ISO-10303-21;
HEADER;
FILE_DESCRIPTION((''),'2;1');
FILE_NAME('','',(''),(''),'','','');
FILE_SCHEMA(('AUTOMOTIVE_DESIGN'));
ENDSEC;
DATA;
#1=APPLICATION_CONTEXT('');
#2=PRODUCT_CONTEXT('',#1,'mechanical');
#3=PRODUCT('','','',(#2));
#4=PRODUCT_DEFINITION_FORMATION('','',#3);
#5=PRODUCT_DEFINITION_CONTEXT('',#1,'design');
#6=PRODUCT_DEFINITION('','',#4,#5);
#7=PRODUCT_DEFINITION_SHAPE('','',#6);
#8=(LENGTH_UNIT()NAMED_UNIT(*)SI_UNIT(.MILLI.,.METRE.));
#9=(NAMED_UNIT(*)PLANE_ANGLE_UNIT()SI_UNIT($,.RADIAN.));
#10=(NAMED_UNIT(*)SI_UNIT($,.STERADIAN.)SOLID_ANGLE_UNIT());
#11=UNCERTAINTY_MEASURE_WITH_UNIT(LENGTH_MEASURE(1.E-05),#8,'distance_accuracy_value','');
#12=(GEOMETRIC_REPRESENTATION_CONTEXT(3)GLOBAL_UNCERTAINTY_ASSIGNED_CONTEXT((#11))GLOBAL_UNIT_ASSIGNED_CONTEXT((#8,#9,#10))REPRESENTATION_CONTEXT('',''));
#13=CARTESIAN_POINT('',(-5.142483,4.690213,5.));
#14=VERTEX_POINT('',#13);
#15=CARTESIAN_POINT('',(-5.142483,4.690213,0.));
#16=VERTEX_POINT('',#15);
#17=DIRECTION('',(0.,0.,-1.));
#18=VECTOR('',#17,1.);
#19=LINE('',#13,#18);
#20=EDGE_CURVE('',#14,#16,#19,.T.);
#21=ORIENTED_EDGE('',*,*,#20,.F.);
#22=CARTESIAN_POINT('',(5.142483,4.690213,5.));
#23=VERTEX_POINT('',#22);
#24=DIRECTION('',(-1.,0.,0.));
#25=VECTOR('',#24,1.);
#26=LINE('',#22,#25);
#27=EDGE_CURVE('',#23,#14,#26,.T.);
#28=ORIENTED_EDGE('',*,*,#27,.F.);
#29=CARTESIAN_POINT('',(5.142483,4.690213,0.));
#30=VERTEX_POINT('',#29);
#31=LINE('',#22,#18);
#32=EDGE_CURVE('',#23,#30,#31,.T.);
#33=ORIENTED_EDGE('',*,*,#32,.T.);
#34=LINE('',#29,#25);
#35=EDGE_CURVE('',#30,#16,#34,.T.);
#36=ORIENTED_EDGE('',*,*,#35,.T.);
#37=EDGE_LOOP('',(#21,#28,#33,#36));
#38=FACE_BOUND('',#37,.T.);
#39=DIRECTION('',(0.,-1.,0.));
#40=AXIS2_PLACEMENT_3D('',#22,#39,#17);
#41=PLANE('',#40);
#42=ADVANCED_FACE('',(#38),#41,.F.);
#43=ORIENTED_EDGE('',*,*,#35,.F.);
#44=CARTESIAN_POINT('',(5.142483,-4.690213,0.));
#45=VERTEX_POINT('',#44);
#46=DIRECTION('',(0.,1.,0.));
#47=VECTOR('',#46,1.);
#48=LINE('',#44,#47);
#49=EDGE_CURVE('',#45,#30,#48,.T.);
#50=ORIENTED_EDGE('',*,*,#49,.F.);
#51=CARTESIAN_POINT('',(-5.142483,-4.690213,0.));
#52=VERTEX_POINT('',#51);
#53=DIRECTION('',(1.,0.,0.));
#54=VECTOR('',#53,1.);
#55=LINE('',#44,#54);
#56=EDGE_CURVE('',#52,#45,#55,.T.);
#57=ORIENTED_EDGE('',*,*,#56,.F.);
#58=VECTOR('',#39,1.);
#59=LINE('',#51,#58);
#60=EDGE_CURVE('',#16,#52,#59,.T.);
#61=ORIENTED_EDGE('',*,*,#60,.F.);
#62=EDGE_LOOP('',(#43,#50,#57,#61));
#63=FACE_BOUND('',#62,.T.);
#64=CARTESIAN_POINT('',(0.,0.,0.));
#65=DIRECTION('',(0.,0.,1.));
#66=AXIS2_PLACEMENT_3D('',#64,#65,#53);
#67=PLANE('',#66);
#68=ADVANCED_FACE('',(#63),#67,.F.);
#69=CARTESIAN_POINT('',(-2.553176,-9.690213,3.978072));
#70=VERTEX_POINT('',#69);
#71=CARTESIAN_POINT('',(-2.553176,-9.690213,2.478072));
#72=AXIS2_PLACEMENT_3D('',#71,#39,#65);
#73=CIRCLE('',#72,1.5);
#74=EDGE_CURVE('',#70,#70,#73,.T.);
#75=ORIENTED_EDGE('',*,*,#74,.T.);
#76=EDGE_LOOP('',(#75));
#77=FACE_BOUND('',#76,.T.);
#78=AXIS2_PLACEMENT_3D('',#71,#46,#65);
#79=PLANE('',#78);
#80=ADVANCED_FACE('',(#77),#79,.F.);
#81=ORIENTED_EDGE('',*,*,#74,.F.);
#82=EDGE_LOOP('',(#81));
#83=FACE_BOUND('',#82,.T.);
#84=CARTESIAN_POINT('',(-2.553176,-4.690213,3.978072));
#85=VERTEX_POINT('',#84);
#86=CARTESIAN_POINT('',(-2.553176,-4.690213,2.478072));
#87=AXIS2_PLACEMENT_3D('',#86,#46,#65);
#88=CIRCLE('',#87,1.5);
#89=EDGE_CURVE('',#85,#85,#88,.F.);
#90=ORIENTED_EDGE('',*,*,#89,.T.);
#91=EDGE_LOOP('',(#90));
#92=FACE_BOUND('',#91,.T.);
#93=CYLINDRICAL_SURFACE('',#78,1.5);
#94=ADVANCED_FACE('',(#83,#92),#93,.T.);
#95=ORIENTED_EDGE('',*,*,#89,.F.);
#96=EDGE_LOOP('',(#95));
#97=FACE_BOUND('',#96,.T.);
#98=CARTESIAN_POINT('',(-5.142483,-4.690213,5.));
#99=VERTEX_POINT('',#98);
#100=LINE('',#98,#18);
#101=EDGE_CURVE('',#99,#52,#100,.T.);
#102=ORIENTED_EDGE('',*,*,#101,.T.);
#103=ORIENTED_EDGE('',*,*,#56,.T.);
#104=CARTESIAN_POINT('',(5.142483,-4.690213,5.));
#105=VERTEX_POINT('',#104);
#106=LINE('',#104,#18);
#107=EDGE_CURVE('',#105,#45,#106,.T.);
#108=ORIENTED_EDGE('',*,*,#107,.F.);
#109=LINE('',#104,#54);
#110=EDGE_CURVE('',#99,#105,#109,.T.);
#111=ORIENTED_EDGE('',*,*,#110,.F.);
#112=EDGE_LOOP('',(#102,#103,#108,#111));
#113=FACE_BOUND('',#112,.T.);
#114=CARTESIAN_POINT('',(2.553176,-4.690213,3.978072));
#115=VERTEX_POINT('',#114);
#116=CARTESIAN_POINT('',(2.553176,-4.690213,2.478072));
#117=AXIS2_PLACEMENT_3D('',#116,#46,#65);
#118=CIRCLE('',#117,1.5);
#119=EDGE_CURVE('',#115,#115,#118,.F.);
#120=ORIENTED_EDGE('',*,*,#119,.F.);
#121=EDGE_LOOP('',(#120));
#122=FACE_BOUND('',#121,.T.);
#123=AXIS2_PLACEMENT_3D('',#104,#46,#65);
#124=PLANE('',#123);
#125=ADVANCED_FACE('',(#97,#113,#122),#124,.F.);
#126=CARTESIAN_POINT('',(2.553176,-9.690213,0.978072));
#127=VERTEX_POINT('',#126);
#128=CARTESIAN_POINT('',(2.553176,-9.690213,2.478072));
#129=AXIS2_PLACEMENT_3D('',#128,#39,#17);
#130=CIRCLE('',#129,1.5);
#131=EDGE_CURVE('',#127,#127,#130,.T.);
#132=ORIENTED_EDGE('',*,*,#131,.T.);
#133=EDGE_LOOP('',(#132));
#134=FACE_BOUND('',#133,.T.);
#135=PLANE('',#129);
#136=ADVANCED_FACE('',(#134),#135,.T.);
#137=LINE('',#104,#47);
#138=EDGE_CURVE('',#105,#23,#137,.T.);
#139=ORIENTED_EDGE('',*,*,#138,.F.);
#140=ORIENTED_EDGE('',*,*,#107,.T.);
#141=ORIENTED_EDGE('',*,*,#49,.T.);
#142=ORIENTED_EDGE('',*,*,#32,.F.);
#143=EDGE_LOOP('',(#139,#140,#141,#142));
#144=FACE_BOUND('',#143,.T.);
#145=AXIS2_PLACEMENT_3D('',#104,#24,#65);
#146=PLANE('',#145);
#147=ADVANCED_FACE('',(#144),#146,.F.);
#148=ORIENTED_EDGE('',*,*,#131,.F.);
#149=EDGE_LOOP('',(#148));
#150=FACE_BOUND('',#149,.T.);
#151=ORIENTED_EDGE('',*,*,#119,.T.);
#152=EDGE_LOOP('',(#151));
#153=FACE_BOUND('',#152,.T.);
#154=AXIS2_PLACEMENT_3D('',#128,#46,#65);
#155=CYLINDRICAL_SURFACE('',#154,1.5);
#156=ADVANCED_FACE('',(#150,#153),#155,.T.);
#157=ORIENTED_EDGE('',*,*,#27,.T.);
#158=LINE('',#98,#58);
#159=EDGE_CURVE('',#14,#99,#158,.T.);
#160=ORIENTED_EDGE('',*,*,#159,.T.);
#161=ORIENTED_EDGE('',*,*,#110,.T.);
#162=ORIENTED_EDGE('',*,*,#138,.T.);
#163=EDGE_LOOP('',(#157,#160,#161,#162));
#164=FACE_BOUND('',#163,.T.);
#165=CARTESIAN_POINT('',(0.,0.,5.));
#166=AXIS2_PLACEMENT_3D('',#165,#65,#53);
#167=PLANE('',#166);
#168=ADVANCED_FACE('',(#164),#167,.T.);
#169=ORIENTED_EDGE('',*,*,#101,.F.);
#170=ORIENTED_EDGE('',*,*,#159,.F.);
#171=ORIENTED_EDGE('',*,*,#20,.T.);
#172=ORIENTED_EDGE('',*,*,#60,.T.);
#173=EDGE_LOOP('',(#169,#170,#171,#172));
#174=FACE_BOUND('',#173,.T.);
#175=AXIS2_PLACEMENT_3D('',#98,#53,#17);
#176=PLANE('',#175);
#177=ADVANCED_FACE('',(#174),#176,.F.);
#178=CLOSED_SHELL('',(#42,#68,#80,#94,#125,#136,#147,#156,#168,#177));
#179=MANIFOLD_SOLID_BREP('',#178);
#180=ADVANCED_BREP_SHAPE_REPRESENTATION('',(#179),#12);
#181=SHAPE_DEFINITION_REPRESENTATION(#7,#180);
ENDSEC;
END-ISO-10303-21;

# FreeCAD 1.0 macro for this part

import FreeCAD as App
import Part
import Sketcher

V = App.Vector

doc = App.newDocument("Part")
body = doc.addObject("PartDesign::Body", "Body")

sketch1 = body.newObject("Sketcher::SketchObject", "Sketch")
sketch1.AttachmentSupport = (doc.getObject("XY_Plane"), [""])
sketch1.MapMode = "FlatFace"
sketch1.addGeometry([
    Part.LineSegment(V(-5.142483, 4.690213, 0), V(-5.142483, -4.690213, 0)),
    Part.LineSegment(V(-5.142483, -4.690213, 0), V(5.142483, -4.690213, 0)),
    Part.LineSegment(V(5.142483, -4.690213, 0), V(5.142483, 4.690213, 0)),
    Part.LineSegment(V(5.142483, 4.690213, 0), V(-5.142483, 4.690213, 0)),
], False)
sketch1.addConstraint([
    Sketcher.Constraint("Coincident", 0, 2, 1, 1),
    Sketcher.Constraint("Coincident", 1, 2, 2, 1),
    Sketcher.Constraint("Coincident", 2, 2, 3, 1),
    Sketcher.Constraint("Coincident", 3, 2, 0, 1),
    Sketcher.Constraint("Vertical", 0),
    Sketcher.Constraint("Horizontal", 1),
    Sketcher.Constraint("Vertical", 2),
    Sketcher.Constraint("Horizontal", 3),
    Sketcher.Constraint("Symmetric", 0, 2, 2, 2, -1, 1),
    Sketcher.Constraint("DistanceX", 1, 1, 1, 2, 10.284967),
    Sketcher.Constraint("DistanceY", 0, 2, 0, 1, 9.380427),
])
pad1 = body.newObject("PartDesign::Pad", "Pad")
pad1.Profile = sketch1
pad1.Length = 5

sketch2 = body.newObject("Sketcher::SketchObject", "Sketch001")
sketch2.AttachmentSupport = (doc.getObject("XZ_Plane"), [""])
sketch2.MapMode = "FlatFace"
sketch2.AttachmentOffset = App.Placement(V(0, 0, 4.690213), App.Rotation())
sketch2.addGeometry([
    Part.Circle(V(2.553176, 2.478072, 0), V(0, 0, 1), 1.5),
    Part.Circle(V(-2.553176, 2.478072, 0), V(0, 0, 1), 1.5),
], False)
sketch2.addConstraint([
    Sketcher.Constraint("Equal", 0, 1),
    Sketcher.Constraint("Symmetric", 0, 3, 1, 3, -2),
    Sketcher.Constraint("Diameter", 0, 3.0),
    Sketcher.Constraint("DistanceY", -1, 1, 0, 3, 2.478072),
    Sketcher.Constraint("DistanceX", -1, 1, 0, 3, 2.553176),
])
pad2 = body.newObject("PartDesign::Pad", "Pad001")
pad2.Profile = sketch2
pad2.Length = 5

doc.recompute()
